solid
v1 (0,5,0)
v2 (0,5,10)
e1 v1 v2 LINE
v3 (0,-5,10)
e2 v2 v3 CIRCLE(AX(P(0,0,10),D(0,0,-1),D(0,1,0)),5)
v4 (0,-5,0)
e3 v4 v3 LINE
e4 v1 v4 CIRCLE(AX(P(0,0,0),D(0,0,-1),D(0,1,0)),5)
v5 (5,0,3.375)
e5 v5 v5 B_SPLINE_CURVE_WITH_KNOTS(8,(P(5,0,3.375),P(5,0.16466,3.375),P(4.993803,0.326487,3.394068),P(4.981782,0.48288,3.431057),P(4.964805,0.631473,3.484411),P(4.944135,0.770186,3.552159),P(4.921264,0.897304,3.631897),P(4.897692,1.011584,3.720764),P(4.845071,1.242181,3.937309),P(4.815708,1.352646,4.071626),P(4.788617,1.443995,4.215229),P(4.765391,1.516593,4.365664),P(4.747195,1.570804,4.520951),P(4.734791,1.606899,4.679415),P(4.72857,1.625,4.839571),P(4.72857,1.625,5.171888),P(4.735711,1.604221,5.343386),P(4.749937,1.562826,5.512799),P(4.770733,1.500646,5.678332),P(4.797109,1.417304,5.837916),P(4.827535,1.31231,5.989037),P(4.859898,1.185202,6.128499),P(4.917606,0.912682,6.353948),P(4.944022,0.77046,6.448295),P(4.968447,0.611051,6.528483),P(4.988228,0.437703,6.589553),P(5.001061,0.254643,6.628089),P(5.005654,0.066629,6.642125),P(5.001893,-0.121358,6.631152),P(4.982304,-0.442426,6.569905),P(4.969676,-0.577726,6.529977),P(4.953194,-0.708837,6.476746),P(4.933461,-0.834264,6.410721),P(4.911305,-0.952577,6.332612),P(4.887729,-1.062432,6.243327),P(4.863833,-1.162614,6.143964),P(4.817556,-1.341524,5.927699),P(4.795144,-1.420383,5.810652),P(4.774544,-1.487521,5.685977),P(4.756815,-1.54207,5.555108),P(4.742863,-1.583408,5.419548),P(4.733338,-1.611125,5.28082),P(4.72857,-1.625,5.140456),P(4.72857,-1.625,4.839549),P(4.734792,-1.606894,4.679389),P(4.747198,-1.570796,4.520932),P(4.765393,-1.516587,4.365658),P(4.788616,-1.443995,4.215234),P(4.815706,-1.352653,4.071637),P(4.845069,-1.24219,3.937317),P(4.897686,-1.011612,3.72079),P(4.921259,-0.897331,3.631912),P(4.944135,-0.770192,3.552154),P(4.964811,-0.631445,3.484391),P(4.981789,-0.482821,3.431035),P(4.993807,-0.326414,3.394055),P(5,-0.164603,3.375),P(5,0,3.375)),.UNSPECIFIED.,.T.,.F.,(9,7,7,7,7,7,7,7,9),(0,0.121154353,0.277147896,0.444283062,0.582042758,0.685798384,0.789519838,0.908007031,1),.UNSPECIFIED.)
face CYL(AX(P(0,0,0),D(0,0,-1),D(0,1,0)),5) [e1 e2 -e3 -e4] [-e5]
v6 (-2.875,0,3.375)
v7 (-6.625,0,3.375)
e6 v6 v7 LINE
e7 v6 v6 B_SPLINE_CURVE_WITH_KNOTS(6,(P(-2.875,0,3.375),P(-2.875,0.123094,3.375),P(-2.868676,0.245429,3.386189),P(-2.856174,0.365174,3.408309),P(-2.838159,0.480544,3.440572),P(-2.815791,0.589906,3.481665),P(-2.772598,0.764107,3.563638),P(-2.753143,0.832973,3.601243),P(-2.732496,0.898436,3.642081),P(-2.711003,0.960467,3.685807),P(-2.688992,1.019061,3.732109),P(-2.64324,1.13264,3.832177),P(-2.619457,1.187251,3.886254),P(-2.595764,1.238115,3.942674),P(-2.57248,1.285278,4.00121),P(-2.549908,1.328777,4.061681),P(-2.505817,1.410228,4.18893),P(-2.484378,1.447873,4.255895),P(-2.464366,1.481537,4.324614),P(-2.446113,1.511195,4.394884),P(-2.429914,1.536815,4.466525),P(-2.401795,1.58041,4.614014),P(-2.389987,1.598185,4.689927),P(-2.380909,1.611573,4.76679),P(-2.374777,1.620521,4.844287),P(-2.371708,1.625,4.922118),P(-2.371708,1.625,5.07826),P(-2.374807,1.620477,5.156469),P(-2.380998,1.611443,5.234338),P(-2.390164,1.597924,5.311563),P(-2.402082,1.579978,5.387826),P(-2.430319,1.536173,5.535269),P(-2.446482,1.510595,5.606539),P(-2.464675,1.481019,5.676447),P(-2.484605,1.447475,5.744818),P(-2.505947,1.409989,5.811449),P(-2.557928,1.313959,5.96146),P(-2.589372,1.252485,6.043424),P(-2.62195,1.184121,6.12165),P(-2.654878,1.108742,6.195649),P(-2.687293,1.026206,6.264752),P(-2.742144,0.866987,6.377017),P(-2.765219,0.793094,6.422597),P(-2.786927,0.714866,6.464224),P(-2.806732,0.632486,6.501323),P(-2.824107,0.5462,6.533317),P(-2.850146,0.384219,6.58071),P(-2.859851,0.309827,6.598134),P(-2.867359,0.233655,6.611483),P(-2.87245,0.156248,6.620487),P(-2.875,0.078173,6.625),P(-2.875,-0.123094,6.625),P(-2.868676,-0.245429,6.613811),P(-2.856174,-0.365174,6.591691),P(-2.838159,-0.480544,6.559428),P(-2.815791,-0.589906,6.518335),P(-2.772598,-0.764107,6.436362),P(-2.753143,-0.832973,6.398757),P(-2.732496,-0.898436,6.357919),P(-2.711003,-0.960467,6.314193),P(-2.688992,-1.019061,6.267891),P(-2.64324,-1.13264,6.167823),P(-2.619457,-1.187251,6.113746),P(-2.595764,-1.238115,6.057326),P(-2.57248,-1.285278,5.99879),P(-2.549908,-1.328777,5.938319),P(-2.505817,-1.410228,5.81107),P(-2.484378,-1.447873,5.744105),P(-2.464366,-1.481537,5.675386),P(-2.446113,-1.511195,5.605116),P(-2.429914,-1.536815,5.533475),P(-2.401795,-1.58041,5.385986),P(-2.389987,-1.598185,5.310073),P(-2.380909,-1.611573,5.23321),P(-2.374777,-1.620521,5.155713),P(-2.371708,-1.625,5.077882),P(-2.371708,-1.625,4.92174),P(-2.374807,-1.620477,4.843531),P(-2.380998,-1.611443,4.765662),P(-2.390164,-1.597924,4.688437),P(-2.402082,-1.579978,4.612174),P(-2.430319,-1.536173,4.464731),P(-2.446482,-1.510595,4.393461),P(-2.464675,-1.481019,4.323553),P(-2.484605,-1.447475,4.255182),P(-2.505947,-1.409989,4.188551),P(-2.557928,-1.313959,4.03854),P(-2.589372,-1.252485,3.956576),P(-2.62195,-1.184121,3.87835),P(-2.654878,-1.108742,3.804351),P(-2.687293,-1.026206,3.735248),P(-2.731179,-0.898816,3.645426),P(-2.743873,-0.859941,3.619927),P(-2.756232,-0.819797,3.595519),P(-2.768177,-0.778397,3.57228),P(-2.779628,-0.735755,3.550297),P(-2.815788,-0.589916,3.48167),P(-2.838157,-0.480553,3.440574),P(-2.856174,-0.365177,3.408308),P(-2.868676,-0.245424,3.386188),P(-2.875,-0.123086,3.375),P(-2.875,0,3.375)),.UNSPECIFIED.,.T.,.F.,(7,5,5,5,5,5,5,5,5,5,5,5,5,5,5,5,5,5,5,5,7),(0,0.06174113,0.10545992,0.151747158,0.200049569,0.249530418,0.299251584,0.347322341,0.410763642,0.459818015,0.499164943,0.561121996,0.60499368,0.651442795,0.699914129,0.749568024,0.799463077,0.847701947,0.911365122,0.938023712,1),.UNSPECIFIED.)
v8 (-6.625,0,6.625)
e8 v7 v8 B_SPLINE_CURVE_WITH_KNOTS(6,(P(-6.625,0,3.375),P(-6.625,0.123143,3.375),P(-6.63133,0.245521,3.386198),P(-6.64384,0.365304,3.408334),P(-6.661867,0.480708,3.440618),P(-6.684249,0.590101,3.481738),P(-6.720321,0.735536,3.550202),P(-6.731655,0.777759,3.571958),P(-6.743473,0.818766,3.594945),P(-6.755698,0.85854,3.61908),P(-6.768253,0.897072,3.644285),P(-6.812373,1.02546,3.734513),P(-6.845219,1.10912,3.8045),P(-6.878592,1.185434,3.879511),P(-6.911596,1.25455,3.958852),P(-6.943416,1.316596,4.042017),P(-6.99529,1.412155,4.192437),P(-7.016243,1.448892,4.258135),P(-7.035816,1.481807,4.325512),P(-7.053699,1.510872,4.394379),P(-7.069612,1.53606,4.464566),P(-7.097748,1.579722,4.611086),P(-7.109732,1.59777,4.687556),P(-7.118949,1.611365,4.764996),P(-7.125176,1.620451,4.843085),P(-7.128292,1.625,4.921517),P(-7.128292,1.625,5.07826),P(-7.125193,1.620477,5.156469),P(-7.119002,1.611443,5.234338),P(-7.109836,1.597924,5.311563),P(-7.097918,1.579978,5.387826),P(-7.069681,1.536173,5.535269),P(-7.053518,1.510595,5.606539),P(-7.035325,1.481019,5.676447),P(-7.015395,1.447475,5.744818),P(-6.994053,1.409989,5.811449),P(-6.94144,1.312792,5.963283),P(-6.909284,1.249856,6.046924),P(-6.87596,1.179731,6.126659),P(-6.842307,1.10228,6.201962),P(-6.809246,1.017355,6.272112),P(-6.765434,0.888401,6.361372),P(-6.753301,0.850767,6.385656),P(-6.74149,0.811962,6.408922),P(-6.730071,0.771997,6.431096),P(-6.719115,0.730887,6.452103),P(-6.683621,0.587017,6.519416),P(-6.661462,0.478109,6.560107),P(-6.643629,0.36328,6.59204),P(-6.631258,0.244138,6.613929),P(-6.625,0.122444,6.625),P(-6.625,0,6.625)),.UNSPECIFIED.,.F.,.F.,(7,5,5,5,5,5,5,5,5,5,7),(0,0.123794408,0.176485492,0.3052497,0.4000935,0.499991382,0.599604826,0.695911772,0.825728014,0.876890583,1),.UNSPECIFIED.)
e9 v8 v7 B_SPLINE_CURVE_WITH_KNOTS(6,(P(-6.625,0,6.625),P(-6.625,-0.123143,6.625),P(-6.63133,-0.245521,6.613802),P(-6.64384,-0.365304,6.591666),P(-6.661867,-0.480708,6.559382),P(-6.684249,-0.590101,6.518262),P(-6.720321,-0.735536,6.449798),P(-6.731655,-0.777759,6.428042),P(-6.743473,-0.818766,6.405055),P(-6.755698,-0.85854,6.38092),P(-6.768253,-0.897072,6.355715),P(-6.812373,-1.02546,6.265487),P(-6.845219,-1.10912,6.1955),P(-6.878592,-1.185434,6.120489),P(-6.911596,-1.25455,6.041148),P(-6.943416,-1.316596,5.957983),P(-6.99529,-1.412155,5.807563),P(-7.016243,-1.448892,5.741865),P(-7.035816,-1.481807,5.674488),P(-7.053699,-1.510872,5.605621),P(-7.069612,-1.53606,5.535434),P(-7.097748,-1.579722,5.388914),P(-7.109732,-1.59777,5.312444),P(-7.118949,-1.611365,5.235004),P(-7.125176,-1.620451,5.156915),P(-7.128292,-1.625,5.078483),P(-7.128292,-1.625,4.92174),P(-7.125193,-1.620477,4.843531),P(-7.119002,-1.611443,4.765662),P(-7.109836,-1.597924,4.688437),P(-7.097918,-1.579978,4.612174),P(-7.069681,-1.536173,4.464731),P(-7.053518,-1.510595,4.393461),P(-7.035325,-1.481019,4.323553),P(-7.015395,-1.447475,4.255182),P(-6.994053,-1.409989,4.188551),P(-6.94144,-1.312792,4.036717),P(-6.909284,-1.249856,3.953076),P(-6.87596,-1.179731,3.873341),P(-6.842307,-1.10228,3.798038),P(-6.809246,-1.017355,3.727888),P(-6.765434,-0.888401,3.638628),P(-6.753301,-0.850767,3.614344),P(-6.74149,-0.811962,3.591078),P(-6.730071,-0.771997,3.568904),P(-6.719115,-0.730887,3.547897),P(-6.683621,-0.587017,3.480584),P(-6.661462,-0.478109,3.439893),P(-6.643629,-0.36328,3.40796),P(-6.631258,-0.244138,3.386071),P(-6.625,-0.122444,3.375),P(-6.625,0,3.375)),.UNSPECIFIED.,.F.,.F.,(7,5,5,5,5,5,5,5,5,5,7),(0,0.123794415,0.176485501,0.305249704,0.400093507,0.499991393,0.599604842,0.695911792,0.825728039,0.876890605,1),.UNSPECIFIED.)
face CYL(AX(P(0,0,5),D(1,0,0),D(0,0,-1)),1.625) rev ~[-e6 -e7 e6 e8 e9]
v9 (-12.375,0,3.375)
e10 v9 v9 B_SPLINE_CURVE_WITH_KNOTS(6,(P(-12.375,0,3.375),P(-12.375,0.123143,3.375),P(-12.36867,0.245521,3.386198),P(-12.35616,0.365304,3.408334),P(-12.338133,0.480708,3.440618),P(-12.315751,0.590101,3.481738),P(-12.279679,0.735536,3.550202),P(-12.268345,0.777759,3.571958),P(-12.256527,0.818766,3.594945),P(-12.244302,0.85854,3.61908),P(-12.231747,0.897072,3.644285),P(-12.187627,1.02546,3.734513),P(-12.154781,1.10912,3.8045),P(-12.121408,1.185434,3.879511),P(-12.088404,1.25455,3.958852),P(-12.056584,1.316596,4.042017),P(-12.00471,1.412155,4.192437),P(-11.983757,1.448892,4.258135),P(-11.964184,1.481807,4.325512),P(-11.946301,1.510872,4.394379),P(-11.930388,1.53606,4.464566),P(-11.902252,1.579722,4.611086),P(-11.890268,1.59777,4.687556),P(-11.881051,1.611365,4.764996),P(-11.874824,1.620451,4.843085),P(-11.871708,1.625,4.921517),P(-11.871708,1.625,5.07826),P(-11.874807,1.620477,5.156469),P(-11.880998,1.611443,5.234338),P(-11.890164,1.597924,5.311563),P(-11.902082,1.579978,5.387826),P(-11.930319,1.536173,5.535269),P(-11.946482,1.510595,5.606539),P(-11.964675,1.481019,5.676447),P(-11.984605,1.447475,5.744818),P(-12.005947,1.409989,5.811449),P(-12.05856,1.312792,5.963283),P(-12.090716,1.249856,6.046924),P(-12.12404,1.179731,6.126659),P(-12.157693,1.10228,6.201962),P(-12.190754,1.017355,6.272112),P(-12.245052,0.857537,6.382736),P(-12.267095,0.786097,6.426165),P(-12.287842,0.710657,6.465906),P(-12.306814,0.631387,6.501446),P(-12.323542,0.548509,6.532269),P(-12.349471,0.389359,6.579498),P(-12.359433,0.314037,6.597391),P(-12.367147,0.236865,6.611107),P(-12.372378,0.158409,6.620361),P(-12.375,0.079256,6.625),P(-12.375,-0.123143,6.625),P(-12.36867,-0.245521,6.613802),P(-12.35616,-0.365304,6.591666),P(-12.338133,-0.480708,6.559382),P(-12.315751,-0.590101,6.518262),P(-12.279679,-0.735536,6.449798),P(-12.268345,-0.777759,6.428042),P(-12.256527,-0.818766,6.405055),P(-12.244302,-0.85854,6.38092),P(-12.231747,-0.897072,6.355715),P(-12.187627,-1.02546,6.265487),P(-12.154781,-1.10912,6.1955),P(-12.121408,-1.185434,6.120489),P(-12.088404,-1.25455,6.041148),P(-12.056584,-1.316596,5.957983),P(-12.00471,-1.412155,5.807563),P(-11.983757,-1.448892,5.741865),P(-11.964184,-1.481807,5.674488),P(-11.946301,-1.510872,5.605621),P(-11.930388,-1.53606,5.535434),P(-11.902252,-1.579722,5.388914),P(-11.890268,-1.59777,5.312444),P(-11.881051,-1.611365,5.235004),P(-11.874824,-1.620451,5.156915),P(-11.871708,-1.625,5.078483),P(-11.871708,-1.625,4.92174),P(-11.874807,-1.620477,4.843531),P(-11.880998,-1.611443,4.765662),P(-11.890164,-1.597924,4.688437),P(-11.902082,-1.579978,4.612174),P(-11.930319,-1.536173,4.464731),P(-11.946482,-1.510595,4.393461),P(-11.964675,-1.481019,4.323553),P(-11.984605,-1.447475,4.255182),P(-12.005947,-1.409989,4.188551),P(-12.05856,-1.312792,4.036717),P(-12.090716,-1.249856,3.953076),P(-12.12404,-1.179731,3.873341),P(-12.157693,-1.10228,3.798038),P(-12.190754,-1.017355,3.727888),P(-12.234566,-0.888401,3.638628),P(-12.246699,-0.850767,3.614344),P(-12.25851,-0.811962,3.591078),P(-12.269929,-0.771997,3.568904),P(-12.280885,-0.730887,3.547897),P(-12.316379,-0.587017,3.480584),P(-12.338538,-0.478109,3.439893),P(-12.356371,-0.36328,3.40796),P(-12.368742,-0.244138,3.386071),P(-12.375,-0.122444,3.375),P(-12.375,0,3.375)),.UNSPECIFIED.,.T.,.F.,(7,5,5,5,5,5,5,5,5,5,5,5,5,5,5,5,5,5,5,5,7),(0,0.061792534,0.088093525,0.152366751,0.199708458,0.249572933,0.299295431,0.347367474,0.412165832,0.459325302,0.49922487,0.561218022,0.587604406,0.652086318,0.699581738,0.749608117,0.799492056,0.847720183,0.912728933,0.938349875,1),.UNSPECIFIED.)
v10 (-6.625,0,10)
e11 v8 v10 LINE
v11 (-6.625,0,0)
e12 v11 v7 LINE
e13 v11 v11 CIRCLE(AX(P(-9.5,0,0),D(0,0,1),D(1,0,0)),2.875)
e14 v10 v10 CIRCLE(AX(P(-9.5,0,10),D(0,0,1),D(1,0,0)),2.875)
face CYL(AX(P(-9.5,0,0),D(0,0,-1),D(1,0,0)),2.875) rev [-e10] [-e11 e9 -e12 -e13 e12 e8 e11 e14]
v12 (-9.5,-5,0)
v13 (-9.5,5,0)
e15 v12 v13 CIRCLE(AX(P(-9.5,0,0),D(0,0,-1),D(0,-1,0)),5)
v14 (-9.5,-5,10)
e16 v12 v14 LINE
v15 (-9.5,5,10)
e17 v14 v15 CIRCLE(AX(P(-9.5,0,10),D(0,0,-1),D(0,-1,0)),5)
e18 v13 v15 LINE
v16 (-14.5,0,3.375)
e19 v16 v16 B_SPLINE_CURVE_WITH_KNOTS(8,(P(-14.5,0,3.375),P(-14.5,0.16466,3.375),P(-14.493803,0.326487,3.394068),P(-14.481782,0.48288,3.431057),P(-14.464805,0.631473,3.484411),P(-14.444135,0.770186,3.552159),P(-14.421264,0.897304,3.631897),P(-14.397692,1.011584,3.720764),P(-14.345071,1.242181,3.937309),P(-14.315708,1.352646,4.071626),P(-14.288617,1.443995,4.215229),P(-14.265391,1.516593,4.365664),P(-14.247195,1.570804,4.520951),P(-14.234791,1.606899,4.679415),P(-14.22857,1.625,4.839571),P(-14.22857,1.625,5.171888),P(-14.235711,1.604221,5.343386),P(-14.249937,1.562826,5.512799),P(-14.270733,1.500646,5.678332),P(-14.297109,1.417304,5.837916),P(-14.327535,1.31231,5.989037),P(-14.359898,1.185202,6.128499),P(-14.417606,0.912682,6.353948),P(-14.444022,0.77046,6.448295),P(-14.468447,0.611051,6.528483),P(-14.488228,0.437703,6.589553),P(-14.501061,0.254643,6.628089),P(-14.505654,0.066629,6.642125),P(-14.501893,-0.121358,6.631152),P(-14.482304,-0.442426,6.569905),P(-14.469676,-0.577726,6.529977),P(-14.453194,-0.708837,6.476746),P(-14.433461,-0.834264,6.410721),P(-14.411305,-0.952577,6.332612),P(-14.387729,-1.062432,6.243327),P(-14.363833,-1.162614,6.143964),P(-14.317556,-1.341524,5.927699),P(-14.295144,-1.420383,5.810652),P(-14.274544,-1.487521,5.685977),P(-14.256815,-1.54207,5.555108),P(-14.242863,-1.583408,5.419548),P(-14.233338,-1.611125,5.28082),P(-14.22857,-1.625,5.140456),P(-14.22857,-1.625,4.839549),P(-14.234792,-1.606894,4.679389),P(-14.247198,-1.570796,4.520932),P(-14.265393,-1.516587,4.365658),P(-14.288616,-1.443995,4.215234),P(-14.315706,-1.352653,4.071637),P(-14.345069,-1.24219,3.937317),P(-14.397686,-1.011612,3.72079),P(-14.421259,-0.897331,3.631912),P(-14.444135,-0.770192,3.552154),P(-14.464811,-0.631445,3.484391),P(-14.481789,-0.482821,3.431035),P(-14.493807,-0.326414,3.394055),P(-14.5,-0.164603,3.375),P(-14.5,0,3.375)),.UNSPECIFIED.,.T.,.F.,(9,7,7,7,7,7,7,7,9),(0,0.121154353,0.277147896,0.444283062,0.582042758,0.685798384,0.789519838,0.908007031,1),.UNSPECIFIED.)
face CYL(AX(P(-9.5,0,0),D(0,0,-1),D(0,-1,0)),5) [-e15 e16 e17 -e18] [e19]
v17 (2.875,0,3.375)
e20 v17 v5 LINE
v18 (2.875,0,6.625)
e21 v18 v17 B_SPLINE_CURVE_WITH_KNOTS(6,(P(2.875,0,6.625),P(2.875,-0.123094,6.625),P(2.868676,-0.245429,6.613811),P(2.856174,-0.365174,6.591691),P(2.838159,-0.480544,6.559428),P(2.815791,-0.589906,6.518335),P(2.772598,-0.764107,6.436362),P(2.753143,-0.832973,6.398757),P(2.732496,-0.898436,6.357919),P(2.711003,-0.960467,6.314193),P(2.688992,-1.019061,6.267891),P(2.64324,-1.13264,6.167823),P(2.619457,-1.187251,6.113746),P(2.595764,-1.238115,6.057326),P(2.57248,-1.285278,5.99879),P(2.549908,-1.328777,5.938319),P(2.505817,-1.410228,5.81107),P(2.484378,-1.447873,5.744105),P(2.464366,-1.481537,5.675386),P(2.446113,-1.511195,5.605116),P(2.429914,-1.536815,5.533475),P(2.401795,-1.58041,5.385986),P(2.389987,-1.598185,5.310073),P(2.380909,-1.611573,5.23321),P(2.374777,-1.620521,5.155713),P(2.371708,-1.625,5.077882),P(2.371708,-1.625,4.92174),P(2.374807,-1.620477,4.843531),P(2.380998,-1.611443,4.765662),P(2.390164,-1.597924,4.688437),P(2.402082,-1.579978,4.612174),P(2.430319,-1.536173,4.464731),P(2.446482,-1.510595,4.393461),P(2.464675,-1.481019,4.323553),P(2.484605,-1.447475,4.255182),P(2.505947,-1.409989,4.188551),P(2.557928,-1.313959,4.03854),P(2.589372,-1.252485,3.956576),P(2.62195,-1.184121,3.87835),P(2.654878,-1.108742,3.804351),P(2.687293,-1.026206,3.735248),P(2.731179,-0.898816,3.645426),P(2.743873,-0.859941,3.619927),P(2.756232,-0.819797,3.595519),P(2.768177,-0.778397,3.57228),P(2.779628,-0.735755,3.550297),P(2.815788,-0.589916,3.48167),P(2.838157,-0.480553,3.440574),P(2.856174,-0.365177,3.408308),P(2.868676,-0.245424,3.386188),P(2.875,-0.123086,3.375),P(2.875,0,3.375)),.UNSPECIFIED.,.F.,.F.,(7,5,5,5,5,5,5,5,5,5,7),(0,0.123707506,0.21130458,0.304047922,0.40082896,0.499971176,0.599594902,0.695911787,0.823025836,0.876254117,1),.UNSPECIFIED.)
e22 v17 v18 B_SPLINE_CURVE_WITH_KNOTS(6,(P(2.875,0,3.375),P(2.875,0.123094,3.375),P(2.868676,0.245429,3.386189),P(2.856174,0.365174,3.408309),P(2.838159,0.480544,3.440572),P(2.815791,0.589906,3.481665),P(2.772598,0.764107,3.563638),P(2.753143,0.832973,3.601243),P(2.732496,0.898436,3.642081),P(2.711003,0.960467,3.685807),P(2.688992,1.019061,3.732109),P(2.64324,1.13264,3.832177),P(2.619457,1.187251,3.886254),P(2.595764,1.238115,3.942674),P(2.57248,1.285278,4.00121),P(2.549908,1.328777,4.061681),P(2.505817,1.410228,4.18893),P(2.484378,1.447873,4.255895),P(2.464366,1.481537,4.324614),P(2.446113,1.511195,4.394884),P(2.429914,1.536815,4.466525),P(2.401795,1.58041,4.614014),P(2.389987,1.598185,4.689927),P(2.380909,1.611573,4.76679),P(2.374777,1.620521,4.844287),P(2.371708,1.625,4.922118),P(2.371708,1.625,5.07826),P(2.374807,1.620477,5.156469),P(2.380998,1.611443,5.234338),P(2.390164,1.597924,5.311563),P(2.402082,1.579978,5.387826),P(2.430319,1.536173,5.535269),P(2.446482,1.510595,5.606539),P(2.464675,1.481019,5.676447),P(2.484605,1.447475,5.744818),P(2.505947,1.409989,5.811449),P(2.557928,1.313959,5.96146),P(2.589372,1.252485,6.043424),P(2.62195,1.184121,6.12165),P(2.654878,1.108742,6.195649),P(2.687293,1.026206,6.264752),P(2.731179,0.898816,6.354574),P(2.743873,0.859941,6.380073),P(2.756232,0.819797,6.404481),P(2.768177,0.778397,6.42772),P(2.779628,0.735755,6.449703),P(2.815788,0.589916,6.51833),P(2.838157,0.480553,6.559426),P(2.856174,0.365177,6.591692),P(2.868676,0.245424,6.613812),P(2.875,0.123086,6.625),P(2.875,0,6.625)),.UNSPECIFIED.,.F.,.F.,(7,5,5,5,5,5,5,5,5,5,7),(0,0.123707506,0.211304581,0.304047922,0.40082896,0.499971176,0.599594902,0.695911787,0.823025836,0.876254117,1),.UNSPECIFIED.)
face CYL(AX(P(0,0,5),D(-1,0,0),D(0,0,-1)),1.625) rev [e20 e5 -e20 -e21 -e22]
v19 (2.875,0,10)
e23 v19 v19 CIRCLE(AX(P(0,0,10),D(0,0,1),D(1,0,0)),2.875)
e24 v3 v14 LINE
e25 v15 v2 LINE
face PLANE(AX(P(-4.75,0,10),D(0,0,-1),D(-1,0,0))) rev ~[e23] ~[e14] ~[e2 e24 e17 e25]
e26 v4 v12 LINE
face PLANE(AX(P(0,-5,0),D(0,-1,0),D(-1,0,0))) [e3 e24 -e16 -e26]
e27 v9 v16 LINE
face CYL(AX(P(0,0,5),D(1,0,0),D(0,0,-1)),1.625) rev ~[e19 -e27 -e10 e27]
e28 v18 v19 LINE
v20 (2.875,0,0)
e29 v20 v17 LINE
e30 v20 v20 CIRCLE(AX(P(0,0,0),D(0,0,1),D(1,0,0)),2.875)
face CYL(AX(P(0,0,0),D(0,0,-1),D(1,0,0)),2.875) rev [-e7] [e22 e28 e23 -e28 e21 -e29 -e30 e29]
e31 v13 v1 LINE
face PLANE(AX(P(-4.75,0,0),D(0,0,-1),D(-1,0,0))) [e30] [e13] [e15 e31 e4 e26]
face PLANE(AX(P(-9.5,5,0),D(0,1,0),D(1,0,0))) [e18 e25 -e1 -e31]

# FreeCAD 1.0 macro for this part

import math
import FreeCAD as App
import Part
import Sketcher
Q = App.Units.Quantity

doc = App.newDocument("Part")
body = doc.addObject("PartDesign::Body", "Body")

# Sketch on XY plane
sketch1 = body.newObject("Sketcher::SketchObject", "Sketch")
sketch1.AttachmentSupport = (doc.getObject("XY_Plane"), [""])
sketch1.MapMode = "FlatFace"
sketch1.addGeometry([
    Part.LineSegment(App.Vector(-9.5, -5, 0), App.Vector(0, -5, 0)),  # 0
    Part.ArcOfCircle(Part.Circle(App.Vector(0, 0, 0), App.Vector(0, 0, 1), 5), math.radians(-90), math.radians(90)),  # 1
    Part.LineSegment(App.Vector(0, 5, 0), App.Vector(-9.5, 5, 0)),  # 2
    Part.ArcOfCircle(Part.Circle(App.Vector(-9.5, 0, 0), App.Vector(0, 0, 1), 5), math.radians(90), math.radians(270)),  # 3
    Part.Circle(App.Vector(0, 0, 0), App.Vector(0, 0, 1), 2.875),  # 4
    Part.Circle(App.Vector(-9.5, 0, 0), App.Vector(0, 0, 1), 2.875),  # 5
], False)
sketch1.addConstraint([
    Sketcher.Constraint("Tangent", 0, 2, 1, 1),
    Sketcher.Constraint("Tangent", 1, 2, 2, 1),
    Sketcher.Constraint("Tangent", 2, 2, 3, 1),
    Sketcher.Constraint("Tangent", 3, 2, 0, 1),
    Sketcher.Constraint("Horizontal", 0),
    Sketcher.Constraint("Horizontal", 2),
    Sketcher.Constraint("Coincident", 1, 3, -1, 1),
    Sketcher.Constraint("Coincident", 4, 3, -1, 1),
    Sketcher.Constraint("Coincident", 5, 3, 3, 3),
    Sketcher.Constraint("Equal", 4, 5),
    Sketcher.Constraint("Radius", 1, Q("5 mm")),
    Sketcher.Constraint("Diameter", 4, Q("5.75 mm")),
    Sketcher.Constraint("DistanceX", 0, 1, 0, 2, Q("9.5 mm")),
])
pad1 = body.newObject("PartDesign::Pad", "Pad")
pad1.Profile = sketch1
pad1.Length = 10

# Sketch on YZ plane
sketch2 = body.newObject("Sketcher::SketchObject", "Sketch001")
sketch2.AttachmentSupport = (doc.getObject("YZ_Plane"), [""])
sketch2.MapMode = "FlatFace"
sketch2.addGeometry(Part.Circle(App.Vector(0, 5, 0), App.Vector(0, 0, 1), 1.625), False)
sketch2.addConstraint([
    Sketcher.Constraint("PointOnObject", 0, 3, -2),
    Sketcher.Constraint("Diameter", 0, Q("3.25 mm")),
    Sketcher.Constraint("DistanceY", -1, 1, 0, 3, Q("5 mm")),
])
pocket1 = body.newObject("PartDesign::Pocket", "Pocket")
pocket1.Profile = sketch2
pocket1.Type = "ThroughAll"
pocket1.Midplane = True

doc.recompute()
